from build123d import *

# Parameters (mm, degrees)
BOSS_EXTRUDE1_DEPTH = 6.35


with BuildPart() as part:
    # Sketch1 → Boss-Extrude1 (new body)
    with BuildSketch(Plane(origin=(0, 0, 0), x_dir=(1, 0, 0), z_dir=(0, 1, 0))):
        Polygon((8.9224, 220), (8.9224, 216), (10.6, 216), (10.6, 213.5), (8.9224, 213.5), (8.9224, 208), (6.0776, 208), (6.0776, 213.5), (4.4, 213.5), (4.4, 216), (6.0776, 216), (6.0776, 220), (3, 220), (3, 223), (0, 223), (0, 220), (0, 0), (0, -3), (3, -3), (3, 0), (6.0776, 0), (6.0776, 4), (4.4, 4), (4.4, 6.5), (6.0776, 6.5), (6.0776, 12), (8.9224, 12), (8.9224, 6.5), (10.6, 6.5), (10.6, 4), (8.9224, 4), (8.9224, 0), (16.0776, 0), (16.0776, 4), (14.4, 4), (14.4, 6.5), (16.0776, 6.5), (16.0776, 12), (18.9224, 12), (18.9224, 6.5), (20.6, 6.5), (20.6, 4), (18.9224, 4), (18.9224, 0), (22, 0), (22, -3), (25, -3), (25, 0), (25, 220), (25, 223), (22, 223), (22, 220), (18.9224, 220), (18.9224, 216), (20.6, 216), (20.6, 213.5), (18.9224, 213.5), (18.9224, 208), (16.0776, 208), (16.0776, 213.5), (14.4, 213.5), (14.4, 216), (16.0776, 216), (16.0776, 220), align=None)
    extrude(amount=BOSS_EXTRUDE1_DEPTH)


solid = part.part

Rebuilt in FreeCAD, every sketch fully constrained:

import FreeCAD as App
import Part
import Sketcher
from FreeCAD import Vector
Q = App.Units.Quantity


def add_polygon(sketch, points):
    """Adds a closed chain of lines whose ends are joined by coincident constraints."""
    first, n = sketch.GeometryCount, len(points)
    for a, b in zip(points, points[1:] + points[:1]):
        sketch.addGeometry(Part.LineSegment(App.Vector(*a, 0), App.Vector(*b, 0)), False)
    for i in range(n):
        sketch.addConstraint(Sketcher.Constraint("Coincident", first + i, 2, first + (i + 1) % n, 1))

doc = App.newDocument("Part")
params = doc.addObject("Spreadsheet::Sheet", "Params")
for row, (alias, value) in enumerate([
    ("sketch1_width", "3 mm"),
    ("sketch1_height", "4 mm"),
    ("sketch1_height2", "226 mm"),
    ("sketch1_height3", "2.5 mm"),
    ("sketch1_height4", "5.5 mm"),
    ("pad1_length", "6.35 mm"),
], start=1):
    params.set(f"A{row}", alias)
    params.set(f"B{row}", "=" + value)
    params.setAlias(f"B{row}", alias)

body = doc.addObject("PartDesign::Body", "Body")

# Sketch on XZ plane
sketch1 = body.newObject("Sketcher::SketchObject", "Sketch")
sketch1.AttachmentSupport = (doc.getObject("XZ_Plane"), [""])
sketch1.MapMode = "FlatFace"
add_polygon(sketch1, [(8.9, -220), (8.9, -216), (10.6, -216), (10.6, -213.5), (8.9, -213.5), (8.9, -208), (6.1, -208), (6.1, -213.5), (4.4, -213.5), (4.4, -216), (6.1, -216), (6.1, -220), (3, -220), (3, -223), (0, -223), (0, 3), (3, 3), (3, 0), (6.1, 0), (6.1, -4), (4.4, -4), (4.4, -6.5), (6.1, -6.5), (6.1, -12), (8.9, -12), (8.9, -6.5), (10.6, -6.5), (10.6, -4), (8.9, -4), (8.9, 0), (16.1, 0), (16.1, -4), (14.4, -4), (14.4, -6.5), (16.1, -6.5), (16.1, -12), (18.9, -12), (18.9, -6.5), (20.6, -6.5), (20.6, -4), (18.9, -4), (18.9, 0), (22, 0), (22, 3), (25, 3), (25, -223), (22, -223), (22, -220), (18.9, -220), (18.9, -216), (20.6, -216), (20.6, -213.5), (18.9, -213.5), (18.9, -208), (16.1, -208), (16.1, -213.5), (14.4, -213.5), (14.4, -216), (16.1, -216), (16.1, -220)])  # lines 0-59
sketch1.addConstraint([
    Sketcher.Constraint("Vertical", 0),
    Sketcher.Constraint("Horizontal", 1),
    Sketcher.Constraint("Vertical", 2),
    Sketcher.Constraint("Horizontal", 3),
    Sketcher.Constraint("Vertical", 4),
    Sketcher.Constraint("Horizontal", 5),
    Sketcher.Constraint("Vertical", 6),
    Sketcher.Constraint("Horizontal", 7),
    Sketcher.Constraint("Vertical", 8),
    Sketcher.Constraint("Horizontal", 9),
    Sketcher.Constraint("Vertical", 10),
    Sketcher.Constraint("Horizontal", 11),
    Sketcher.Constraint("Vertical", 12),
    Sketcher.Constraint("Horizontal", 13),
    Sketcher.Constraint("Vertical", 14),
    Sketcher.Constraint("Horizontal", 15),
    Sketcher.Constraint("Vertical", 16),
    Sketcher.Constraint("Horizontal", 17),
    Sketcher.Constraint("Vertical", 18),
    Sketcher.Constraint("Horizontal", 19),
    Sketcher.Constraint("Vertical", 20),
    Sketcher.Constraint("Horizontal", 21),
    Sketcher.Constraint("Vertical", 22),
    Sketcher.Constraint("Horizontal", 23),
    Sketcher.Constraint("Vertical", 24),
    Sketcher.Constraint("Horizontal", 25),
    Sketcher.Constraint("Vertical", 26),
    Sketcher.Constraint("Horizontal", 27),
    Sketcher.Constraint("Vertical", 28),
    Sketcher.Constraint("Horizontal", 29),
    Sketcher.Constraint("Vertical", 30),
    Sketcher.Constraint("Horizontal", 31),
    Sketcher.Constraint("Vertical", 32),
    Sketcher.Constraint("Horizontal", 33),
    Sketcher.Constraint("Vertical", 34),
    Sketcher.Constraint("Horizontal", 35),
    Sketcher.Constraint("Vertical", 36),
    Sketcher.Constraint("Horizontal", 37),
    Sketcher.Constraint("Vertical", 38),
    Sketcher.Constraint("Horizontal", 39),
    Sketcher.Constraint("Vertical", 40),
    Sketcher.Constraint("Horizontal", 41),
    Sketcher.Constraint("Vertical", 42),
    Sketcher.Constraint("Horizontal", 43),
    Sketcher.Constraint("Vertical", 44),
    Sketcher.Constraint("Horizontal", 45),
    Sketcher.Constraint("Vertical", 46),
    Sketcher.Constraint("Horizontal", 47),
    Sketcher.Constraint("Vertical", 48),
    Sketcher.Constraint("Horizontal", 49),
    Sketcher.Constraint("Vertical", 50),
    Sketcher.Constraint("Horizontal", 51),
    Sketcher.Constraint("Vertical", 52),
    Sketcher.Constraint("Horizontal", 53),
    Sketcher.Constraint("Vertical", 54),
    Sketcher.Constraint("Horizontal", 55),
    Sketcher.Constraint("Vertical", 56),
    Sketcher.Constraint("Horizontal", 57),
    Sketcher.Constraint("Vertical", 58),
    Sketcher.Constraint("Horizontal", 59),
    Sketcher.Constraint("PointOnObject", 13, 2, -2),
    Sketcher.Constraint("PointOnObject", 16, 2, -1),
    Sketcher.Constraint("PointOnObject", 28, 2, -1),
    Sketcher.Constraint("PointOnObject", 40, 2, -1),
    Sketcher.Constraint("Horizontal", 3, 2, 6, 2),
    Sketcher.Constraint("Horizontal", 1, 2, 8, 2),
    Sketcher.Constraint("Horizontal", 21, 2, 24, 2),
    Sketcher.Constraint("Horizontal", 19, 2, 26, 2),
    Sketcher.Constraint("Horizontal", 27, 2, 30, 2),
    Sketcher.Constraint("Horizontal", 25, 2, 32, 2),
    Sketcher.Constraint("Horizontal", 23, 2, 34, 2),
    Sketcher.Constraint("Horizontal", 33, 2, 36, 2),
    Sketcher.Constraint("Horizontal", 31, 2, 38, 2),
    Sketcher.Constraint("Horizontal", 15, 2, 42, 2),
    Sketcher.Constraint("Horizontal", 13, 2, 44, 2),
    Sketcher.Constraint("Horizontal", 11, 2, 46, 2),
    Sketcher.Constraint("Horizontal", 9, 2, 48, 2),
    Sketcher.Constraint("Horizontal", 7, 2, 50, 2),
    Sketcher.Constraint("Horizontal", 5, 2, 52, 2),
    Sketcher.Constraint("Horizontal", 51, 2, 54, 2),
    Sketcher.Constraint("Horizontal", 49, 2, 56, 2),
    Sketcher.Constraint("Horizontal", 47, 2, 58, 2),
    Sketcher.Constraint("Vertical", 0, 2, 3, 2),
    Sketcher.Constraint("Vertical", 6, 2, 9, 2),
    Sketcher.Constraint("Vertical", 12, 2, 15, 2),
    Sketcher.Constraint("Vertical", 10, 2, 17, 2),
    Sketcher.Constraint("Vertical", 8, 2, 19, 2),
    Sketcher.Constraint("Vertical", 18, 2, 21, 2),
    Sketcher.Constraint("Vertical", 4, 2, 23, 2),
    Sketcher.Constraint("Vertical", 2, 2, 25, 2),
    Sketcher.Constraint("Vertical", 24, 2, 27, 2),
    Sketcher.Constraint("Vertical", 30, 2, 33, 2),
    Sketcher.Constraint("Vertical", 36, 2, 39, 2),
    Sketcher.Constraint("Vertical", 42, 2, 45, 2),
    Sketcher.Constraint("Vertical", 40, 2, 47, 2),
    Sketcher.Constraint("Vertical", 38, 2, 49, 2),
    Sketcher.Constraint("Vertical", 48, 2, 51, 2),
    Sketcher.Constraint("Vertical", 34, 2, 53, 2),
    Sketcher.Constraint("Vertical", 32, 2, 55, 2),
    Sketcher.Constraint("Vertical", 54, 2, 57, 2),
    Sketcher.Constraint("Equal", 3, 7),
    Sketcher.Constraint("Equal", 27, 31),
    Sketcher.Constraint("Equal", 23, 35),
    Sketcher.Constraint("Equal", 33, 37),
    Sketcher.Constraint("Equal", 17, 41),
    Sketcher.Constraint("Equal", 15, 43),
    Sketcher.Constraint("Equal", 45, 12),
    Sketcher.Constraint("Equal", 12, 16),
    Sketcher.Constraint("Equal", 10, 18),
    Sketcher.Constraint("Equal", 8, 20),
    Sketcher.Constraint("Equal", 6, 22),
    Sketcher.Constraint("DistanceX", 13, 2, 13, 1, Q("3 mm")),
    Sketcher.Constraint("DistanceY", 0, 1, 0, 2, Q("4 mm")),
    Sketcher.Constraint("DistanceY", 14, 1, 14, 2, Q("226 mm")),
    Sketcher.Constraint("DistanceY", 2, 1, 2, 2, Q("2.5 mm")),
    Sketcher.Constraint("DistanceY", 4, 1, 4, 2, Q("5.5 mm")),
    Sketcher.Constraint("DistanceX", -1, 1, 41, 2, Q("22 mm")),
    Sketcher.Constraint("DistanceX", -1, 1, 1, 2, Q("10.6 mm")),
    Sketcher.Constraint("DistanceX", -1, 1, 7, 2, Q("4.4 mm")),
    Sketcher.Constraint("DistanceX", 1, 1, 1, 2, Q("1.6776 mm")),
])
sketch1.setExpression("Constraints[171]", "Params.sketch1_width")
sketch1.setExpression("Constraints[172]", "Params.sketch1_height")
sketch1.setExpression("Constraints[173]", "Params.sketch1_height2")
sketch1.setExpression("Constraints[174]", "Params.sketch1_height3")
sketch1.setExpression("Constraints[175]", "Params.sketch1_height4")
pad1 = body.newObject("PartDesign::Pad", "Pad")
pad1.Profile = sketch1
pad1.setExpression("Length", "Params.pad1_length")
pad1.Reversed = True

doc.recompute()
